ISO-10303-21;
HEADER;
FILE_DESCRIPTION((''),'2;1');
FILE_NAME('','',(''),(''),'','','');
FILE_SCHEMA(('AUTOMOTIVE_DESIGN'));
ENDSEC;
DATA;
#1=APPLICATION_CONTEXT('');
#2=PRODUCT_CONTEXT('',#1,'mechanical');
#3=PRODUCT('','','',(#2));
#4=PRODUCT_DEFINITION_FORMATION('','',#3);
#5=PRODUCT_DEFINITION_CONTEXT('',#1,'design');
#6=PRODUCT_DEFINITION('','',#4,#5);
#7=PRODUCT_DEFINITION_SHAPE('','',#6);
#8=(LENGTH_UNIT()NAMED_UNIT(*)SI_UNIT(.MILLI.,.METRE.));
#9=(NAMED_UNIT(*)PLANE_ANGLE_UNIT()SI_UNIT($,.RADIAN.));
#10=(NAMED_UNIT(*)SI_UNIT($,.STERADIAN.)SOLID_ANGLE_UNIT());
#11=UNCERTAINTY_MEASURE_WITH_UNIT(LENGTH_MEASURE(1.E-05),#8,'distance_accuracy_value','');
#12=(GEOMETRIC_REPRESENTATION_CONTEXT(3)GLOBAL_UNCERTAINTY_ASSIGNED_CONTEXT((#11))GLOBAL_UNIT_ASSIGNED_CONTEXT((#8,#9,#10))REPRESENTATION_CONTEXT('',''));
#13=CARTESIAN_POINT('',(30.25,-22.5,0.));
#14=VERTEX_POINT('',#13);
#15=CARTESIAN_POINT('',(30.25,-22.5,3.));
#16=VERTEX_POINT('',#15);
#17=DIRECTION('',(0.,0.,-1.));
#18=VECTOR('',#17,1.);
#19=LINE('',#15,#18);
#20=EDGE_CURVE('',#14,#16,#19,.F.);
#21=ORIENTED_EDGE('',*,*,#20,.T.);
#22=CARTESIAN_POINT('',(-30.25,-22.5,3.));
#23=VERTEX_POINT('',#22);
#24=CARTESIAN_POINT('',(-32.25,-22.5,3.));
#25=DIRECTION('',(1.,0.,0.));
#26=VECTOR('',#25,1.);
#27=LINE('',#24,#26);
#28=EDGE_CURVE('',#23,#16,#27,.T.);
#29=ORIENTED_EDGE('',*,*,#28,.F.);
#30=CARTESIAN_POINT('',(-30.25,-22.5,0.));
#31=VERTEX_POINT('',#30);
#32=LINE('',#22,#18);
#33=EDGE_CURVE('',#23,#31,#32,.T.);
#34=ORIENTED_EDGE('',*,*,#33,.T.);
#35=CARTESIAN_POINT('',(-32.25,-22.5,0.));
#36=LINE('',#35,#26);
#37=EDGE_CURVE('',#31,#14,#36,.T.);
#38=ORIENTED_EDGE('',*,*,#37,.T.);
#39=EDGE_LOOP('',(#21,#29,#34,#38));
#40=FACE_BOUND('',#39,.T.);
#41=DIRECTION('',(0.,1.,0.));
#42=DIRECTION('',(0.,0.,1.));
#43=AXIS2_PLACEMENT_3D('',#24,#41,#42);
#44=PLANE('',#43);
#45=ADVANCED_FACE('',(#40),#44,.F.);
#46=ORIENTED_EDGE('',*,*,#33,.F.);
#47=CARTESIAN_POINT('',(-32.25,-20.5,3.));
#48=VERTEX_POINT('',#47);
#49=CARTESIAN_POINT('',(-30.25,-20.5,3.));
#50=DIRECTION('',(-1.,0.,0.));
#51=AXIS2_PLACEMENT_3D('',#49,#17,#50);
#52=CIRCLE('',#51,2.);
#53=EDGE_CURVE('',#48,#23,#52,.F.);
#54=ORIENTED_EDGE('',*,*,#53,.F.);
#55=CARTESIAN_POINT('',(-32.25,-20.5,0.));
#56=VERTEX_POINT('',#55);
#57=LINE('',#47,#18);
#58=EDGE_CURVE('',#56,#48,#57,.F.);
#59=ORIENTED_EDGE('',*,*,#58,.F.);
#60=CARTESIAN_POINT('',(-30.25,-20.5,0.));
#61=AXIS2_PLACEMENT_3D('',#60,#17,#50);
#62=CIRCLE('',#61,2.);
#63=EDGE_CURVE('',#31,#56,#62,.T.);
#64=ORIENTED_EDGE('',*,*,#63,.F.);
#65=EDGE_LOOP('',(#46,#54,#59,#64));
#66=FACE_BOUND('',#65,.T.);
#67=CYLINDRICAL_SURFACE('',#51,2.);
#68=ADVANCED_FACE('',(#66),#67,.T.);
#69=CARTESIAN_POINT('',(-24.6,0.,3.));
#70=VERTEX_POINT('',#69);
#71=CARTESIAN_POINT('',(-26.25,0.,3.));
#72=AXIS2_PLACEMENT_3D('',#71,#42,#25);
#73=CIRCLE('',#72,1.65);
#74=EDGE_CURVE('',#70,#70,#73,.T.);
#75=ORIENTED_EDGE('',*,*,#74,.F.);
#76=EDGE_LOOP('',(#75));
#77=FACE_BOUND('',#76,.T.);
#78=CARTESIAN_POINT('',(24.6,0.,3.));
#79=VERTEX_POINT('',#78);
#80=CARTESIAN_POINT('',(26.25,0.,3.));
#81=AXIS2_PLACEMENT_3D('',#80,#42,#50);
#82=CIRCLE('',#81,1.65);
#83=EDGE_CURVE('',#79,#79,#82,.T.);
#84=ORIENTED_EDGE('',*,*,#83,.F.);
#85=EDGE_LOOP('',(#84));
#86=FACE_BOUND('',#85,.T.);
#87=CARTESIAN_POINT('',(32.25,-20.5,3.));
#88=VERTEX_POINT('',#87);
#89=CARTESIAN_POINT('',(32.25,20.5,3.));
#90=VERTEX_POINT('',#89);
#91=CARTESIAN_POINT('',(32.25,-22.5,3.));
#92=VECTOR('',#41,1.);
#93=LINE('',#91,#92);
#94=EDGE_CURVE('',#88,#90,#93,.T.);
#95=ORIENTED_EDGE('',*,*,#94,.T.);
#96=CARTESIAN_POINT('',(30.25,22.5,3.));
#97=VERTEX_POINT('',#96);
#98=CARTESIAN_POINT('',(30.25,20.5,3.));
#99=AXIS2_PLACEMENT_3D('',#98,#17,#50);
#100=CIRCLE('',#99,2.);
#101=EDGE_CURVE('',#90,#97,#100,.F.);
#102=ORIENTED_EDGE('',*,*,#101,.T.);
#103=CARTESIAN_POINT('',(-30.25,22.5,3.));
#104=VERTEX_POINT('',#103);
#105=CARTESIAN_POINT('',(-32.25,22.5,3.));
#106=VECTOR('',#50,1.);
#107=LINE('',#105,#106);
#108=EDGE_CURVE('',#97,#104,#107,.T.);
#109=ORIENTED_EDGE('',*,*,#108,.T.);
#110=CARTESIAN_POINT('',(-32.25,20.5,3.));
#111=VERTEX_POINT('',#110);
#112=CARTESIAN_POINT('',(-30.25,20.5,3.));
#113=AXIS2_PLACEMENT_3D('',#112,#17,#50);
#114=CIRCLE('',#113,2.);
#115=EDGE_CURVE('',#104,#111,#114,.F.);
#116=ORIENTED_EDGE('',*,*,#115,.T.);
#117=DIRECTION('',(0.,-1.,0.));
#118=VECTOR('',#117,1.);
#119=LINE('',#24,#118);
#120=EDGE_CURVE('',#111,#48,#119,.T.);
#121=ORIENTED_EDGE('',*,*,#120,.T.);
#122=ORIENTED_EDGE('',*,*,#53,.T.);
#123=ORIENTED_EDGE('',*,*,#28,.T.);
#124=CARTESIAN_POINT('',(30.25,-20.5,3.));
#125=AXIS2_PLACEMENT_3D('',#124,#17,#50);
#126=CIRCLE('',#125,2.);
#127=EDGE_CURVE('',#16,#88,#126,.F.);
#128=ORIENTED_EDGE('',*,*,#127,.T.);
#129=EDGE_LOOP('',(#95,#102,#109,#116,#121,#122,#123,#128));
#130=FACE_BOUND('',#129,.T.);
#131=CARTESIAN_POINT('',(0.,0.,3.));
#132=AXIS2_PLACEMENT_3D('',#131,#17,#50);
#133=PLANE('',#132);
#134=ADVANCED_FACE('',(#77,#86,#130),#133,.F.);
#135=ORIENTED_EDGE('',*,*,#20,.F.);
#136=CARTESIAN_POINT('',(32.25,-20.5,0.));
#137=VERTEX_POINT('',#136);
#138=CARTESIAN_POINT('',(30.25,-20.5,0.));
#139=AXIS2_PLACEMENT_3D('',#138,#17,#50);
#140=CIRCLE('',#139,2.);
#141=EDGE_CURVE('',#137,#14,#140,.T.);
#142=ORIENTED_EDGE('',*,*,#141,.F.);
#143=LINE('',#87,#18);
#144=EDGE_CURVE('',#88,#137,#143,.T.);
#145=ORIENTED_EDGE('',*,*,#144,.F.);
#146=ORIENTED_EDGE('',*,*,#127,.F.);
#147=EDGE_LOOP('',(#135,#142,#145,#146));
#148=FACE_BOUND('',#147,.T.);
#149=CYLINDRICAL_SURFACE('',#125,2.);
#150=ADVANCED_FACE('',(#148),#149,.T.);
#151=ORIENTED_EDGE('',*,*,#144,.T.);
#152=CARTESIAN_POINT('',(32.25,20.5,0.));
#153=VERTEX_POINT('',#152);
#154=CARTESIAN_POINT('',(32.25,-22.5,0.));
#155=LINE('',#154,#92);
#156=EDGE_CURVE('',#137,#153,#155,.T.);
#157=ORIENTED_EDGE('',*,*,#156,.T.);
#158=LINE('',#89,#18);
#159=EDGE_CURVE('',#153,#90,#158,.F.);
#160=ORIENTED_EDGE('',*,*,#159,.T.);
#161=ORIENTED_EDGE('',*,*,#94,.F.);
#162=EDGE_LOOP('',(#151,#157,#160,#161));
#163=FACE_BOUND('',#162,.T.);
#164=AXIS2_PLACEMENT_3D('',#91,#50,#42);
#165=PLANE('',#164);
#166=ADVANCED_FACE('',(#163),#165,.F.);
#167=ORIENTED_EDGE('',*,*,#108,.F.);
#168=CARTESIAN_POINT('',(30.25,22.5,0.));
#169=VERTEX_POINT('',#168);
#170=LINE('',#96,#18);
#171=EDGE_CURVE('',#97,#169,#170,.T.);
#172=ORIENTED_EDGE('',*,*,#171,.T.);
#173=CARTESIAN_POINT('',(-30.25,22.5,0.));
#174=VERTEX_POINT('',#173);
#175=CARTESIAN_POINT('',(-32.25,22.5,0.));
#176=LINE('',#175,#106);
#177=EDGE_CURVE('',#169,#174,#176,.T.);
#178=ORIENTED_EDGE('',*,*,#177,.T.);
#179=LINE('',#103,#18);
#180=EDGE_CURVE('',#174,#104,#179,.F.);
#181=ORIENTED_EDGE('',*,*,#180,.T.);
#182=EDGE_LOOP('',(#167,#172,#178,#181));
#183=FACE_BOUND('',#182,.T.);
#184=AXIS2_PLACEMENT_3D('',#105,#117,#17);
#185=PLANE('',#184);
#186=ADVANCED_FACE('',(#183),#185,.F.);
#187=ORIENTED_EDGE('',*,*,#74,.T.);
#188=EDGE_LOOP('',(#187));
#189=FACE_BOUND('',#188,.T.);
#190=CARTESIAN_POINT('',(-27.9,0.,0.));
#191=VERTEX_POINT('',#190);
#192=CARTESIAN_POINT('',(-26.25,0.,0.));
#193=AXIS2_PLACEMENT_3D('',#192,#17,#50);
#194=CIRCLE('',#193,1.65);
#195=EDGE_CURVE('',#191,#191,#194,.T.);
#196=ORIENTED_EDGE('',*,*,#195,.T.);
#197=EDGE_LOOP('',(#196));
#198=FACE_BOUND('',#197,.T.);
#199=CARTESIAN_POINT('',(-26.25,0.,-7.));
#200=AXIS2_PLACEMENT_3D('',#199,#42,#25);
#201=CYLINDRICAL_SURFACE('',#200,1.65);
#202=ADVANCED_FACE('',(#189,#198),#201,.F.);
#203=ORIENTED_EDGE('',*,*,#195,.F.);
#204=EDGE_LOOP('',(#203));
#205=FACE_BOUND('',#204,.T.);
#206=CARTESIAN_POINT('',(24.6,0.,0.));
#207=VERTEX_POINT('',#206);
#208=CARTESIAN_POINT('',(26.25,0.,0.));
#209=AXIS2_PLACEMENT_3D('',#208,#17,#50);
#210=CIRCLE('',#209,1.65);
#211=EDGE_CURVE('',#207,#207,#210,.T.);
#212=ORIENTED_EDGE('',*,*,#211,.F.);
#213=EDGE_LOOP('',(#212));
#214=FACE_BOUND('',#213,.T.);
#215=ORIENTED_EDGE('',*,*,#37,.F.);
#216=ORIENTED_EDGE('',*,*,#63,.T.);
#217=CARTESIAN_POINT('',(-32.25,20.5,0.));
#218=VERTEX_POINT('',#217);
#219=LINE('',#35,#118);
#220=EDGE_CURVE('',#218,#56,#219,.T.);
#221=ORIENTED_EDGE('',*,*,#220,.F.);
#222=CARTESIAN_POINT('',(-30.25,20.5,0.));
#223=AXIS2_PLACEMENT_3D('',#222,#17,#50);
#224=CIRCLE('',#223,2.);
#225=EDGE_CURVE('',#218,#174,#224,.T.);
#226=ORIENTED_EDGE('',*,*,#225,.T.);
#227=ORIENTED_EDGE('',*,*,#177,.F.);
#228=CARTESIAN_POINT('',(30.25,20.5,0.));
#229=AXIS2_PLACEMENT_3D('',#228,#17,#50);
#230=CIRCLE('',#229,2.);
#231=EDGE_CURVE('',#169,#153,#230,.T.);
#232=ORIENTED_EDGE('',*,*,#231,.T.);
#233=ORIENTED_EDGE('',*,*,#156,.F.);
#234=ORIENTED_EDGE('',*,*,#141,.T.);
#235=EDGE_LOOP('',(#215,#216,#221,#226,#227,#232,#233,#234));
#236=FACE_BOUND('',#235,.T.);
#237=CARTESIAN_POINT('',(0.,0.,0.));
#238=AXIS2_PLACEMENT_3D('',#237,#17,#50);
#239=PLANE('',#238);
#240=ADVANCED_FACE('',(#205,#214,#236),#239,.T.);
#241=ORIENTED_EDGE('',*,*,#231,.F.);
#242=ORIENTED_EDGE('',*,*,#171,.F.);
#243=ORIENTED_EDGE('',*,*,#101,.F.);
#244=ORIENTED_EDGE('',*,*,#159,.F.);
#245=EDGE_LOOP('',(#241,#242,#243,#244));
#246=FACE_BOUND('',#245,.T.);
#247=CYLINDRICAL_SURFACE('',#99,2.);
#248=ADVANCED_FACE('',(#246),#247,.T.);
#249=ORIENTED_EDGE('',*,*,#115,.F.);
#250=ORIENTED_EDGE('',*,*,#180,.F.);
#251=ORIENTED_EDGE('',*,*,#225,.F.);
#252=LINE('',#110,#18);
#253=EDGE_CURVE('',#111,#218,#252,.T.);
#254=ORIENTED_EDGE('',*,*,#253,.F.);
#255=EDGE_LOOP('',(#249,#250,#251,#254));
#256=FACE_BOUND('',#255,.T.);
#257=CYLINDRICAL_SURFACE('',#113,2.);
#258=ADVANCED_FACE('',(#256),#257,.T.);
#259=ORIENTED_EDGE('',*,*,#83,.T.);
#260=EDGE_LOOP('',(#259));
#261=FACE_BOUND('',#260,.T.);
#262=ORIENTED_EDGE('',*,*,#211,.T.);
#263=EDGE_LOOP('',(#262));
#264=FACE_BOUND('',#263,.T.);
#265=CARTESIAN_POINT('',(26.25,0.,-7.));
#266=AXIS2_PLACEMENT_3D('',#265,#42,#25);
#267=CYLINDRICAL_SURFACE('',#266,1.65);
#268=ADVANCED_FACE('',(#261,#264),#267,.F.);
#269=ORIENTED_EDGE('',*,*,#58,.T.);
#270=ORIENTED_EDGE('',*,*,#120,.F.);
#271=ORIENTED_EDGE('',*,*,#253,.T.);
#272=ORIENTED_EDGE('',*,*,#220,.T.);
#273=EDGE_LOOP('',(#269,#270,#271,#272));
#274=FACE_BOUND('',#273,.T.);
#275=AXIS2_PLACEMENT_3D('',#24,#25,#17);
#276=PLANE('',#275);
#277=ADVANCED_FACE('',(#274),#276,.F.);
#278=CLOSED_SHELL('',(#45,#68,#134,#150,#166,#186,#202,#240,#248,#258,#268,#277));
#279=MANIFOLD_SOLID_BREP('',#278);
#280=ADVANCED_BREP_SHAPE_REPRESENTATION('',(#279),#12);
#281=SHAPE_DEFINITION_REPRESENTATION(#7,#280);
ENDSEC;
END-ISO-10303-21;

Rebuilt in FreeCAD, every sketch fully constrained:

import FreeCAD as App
import Part
import Sketcher
from FreeCAD import Vector
Q = App.Units.Quantity


def edges_at(feature, points):
    """Names of the edges that pass closest to the given points."""
    edges = feature.Shape.Edges
    near = lambda p: min(range(len(edges)), key=lambda i: edges[i].distToShape(Part.Vertex(*p))[0])
    return sorted({f"Edge{near(p) + 1}" for p in points})

doc = App.newDocument("Part")
body = doc.addObject("PartDesign::Body", "Body")

sketch1 = body.newObject("Sketcher::SketchObject", "Sketch")
sketch1.AttachmentSupport = (doc.getObject("XY_Plane"), [""])
sketch1.MapMode = "FlatFace"
sketch1.addGeometry(Part.LineSegment(Vector(-32.25, 22.5, 0), Vector(-32.25, -22.5, 0)), False)
sketch1.addGeometry(Part.LineSegment(Vector(-32.25, -22.5, 0), Vector(32.25, -22.5, 0)), False)
sketch1.addGeometry(Part.LineSegment(Vector(32.25, -22.5, 0), Vector(32.25, 22.5, 0)), False)
sketch1.addGeometry(Part.LineSegment(Vector(32.25, 22.5, 0), Vector(-32.25, 22.5, 0)), False)
sketch1.addConstraint(Sketcher.Constraint("Coincident", 0, 2, 1, 1))
sketch1.addConstraint(Sketcher.Constraint("Coincident", 1, 2, 2, 1))
sketch1.addConstraint(Sketcher.Constraint("Coincident", 2, 2, 3, 1))
sketch1.addConstraint(Sketcher.Constraint("Coincident", 3, 2, 0, 1))
sketch1.addConstraint(Sketcher.Constraint("Vertical", 0))
sketch1.addConstraint(Sketcher.Constraint("Horizontal", 1))
sketch1.addConstraint(Sketcher.Constraint("Vertical", 2))
sketch1.addConstraint(Sketcher.Constraint("Horizontal", 3))
sketch1.addConstraint(Sketcher.Constraint("Symmetric", 0, 2, 2, 2, -1, 1))
sketch1.addConstraint(Sketcher.Constraint("DistanceY", 0, 2, 0, 1, Q("45 mm")))
sketch1.addConstraint(Sketcher.Constraint("DistanceX", 1, 1, 1, 2, Q("64.5 mm")))
pad1 = body.newObject("PartDesign::Pad", "Pad")
pad1.Profile = sketch1
pad1.Length = 3

sketch2 = body.newObject("Sketcher::SketchObject", "Sketch001")
sketch2.AttachmentSupport = (doc.getObject("XY_Plane"), [""])
sketch2.MapMode = "FlatFace"
sketch2.AttachmentOffset = App.Placement(Vector(0, 0, 3), App.Rotation())
sketch2.addGeometry(Part.LineSegment(Vector(26.25, 5, 0), Vector(26.25, -5, 0)), False)
sketch2.addGeometry(Part.LineSegment(Vector(26.25, -5, 0), Vector(38.25, -5, 0)), False)
sketch2.addGeometry(Part.LineSegment(Vector(38.25, -5, 0), Vector(38.25, 5, 0)), False)
sketch2.addGeometry(Part.LineSegment(Vector(38.25, 5, 0), Vector(26.25, 5, 0)), False)
sketch2.addGeometry(Part.LineSegment(Vector(-38.25, 5, 0), Vector(-38.25, -5, 0)), False)
sketch2.addGeometry(Part.LineSegment(Vector(-38.25, -5, 0), Vector(-26.25, -5, 0)), False)
sketch2.addGeometry(Part.LineSegment(Vector(-26.25, -5, 0), Vector(-26.25, 5, 0)), False)
sketch2.addGeometry(Part.LineSegment(Vector(-26.25, 5, 0), Vector(-38.25, 5, 0)), False)
sketch2.addConstraint(Sketcher.Constraint("Coincident", 0, 2, 1, 1))
sketch2.addConstraint(Sketcher.Constraint("Coincident", 1, 2, 2, 1))
sketch2.addConstraint(Sketcher.Constraint("Coincident", 2, 2, 3, 1))
sketch2.addConstraint(Sketcher.Constraint("Coincident", 3, 2, 0, 1))
sketch2.addConstraint(Sketcher.Constraint("Coincident", 4, 2, 5, 1))
sketch2.addConstraint(Sketcher.Constraint("Coincident", 5, 2, 6, 1))
sketch2.addConstraint(Sketcher.Constraint("Coincident", 6, 2, 7, 1))
sketch2.addConstraint(Sketcher.Constraint("Coincident", 7, 2, 4, 1))
sketch2.addConstraint(Sketcher.Constraint("Vertical", 0))
sketch2.addConstraint(Sketcher.Constraint("Horizontal", 1))
sketch2.addConstraint(Sketcher.Constraint("Vertical", 2))
sketch2.addConstraint(Sketcher.Constraint("Horizontal", 3))
sketch2.addConstraint(Sketcher.Constraint("Vertical", 4))
sketch2.addConstraint(Sketcher.Constraint("Horizontal", 5))
sketch2.addConstraint(Sketcher.Constraint("Vertical", 6))
sketch2.addConstraint(Sketcher.Constraint("Horizontal", 7))
sketch2.addConstraint(Sketcher.Constraint("Symmetric", 2, 2, 4, 2, -1, 1))
sketch2.addConstraint(Sketcher.Constraint("Symmetric", 0, 2, 6, 2, -1, 1))
sketch2.addConstraint(Sketcher.Constraint("Horizontal", 1, 2, 4, 2))
sketch2.addConstraint(Sketcher.Constraint("DistanceX", 1, 1, 1, 2, Q("12 mm")))
sketch2.addConstraint(Sketcher.Constraint("DistanceY", 0, 2, 0, 1, Q("10 mm")))
sketch2.addConstraint(Sketcher.Constraint("DistanceX", 4, 2, 0, 2, Q("64.5 mm")))
pad2 = body.newObject("PartDesign::Pad", "Pad001")
pad2.Profile = sketch2
pad2.Length = 3
pad2.Reversed = True
doc.recompute()

fillet = body.newObject("PartDesign::Fillet", "Fillet")
fillet.Base = (pad2, edges_at(pad2, [
    (38.25, -5, 1.5),
    (32.25, 5, 1.5),
    (32.25, -5, 1.5),
    (38.25, 5, 1.5),
    (-38.25, 5, 1.5),
    (-32.25, 5, 1.5),
    (-38.25, -5, 1.5),
    (-32.25, -5, 1.5),
    (32.25, -22.5, 1.5),
    (-32.25, -22.5, 1.5),
    (-32.25, 22.5, 1.5),
    (32.25, 22.5, 1.5),
]))
fillet.Radius = 2

sketch3 = body.newObject("Sketcher::SketchObject", "Sketch002")
sketch3.AttachmentSupport = (doc.getObject("XY_Plane"), [""])
sketch3.MapMode = "FlatFace"
sketch3.AttachmentOffset = App.Placement(Vector(0, 0, 3), App.Rotation())
sketch3.addGeometry(Part.Circle(Vector(-35.25, 0, 0), Vector(0, 0, 1), 1.65), False)
sketch3.addGeometry(Part.Circle(Vector(35.25, 0, 0), Vector(0, 0, 1), 1.65), False)
sketch3.addConstraint(Sketcher.Constraint("Equal", 0, 1))
sketch3.addConstraint(Sketcher.Constraint("Symmetric", 0, 3, 1, 3, -1, 1))
sketch3.addConstraint(Sketcher.Constraint("PointOnObject", 0, 3, -1))
sketch3.addConstraint(Sketcher.Constraint("Diameter", 0, Q("3.3 mm")))
sketch3.addConstraint(Sketcher.Constraint("DistanceX", 0, 3, 1, 3, Q("70.5 mm")))
pocket1 = body.newObject("PartDesign::Pocket", "Pocket")
pocket1.Profile = sketch3
pocket1.Length = 6

sketch4 = body.newObject("Sketcher::SketchObject", "Sketch003")
sketch4.AttachmentSupport = (doc.getObject("XY_Plane"), [""])
sketch4.MapMode = "FlatFace"
sketch4.AttachmentOffset = App.Placement(Vector(0, 0, 3), App.Rotation())
sketch4.addGeometry(Part.LineSegment(Vector(-38.25, 7, 0), Vector(-38.25, -7, 0)), False)
sketch4.addGeometry(Part.LineSegment(Vector(-38.25, -7, 0), Vector(-32.25, -7, 0)), False)
sketch4.addGeometry(Part.LineSegment(Vector(-32.25, -7, 0), Vector(-32.25, 7, 0)), False)
sketch4.addGeometry(Part.LineSegment(Vector(-32.25, 7, 0), Vector(-38.25, 7, 0)), False)
sketch4.addGeometry(Part.LineSegment(Vector(32.25, 7, 0), Vector(32.25, -7, 0)), False)
sketch4.addGeometry(Part.LineSegment(Vector(32.25, -7, 0), Vector(38.25, -7, 0)), False)
sketch4.addGeometry(Part.LineSegment(Vector(38.25, -7, 0), Vector(38.25, 7, 0)), False)
sketch4.addGeometry(Part.LineSegment(Vector(38.25, 7, 0), Vector(32.25, 7, 0)), False)
sketch4.addConstraint(Sketcher.Constraint("Coincident", 0, 2, 1, 1))
sketch4.addConstraint(Sketcher.Constraint("Coincident", 1, 2, 2, 1))
sketch4.addConstraint(Sketcher.Constraint("Coincident", 2, 2, 3, 1))
sketch4.addConstraint(Sketcher.Constraint("Coincident", 3, 2, 0, 1))
sketch4.addConstraint(Sketcher.Constraint("Coincident", 4, 2, 5, 1))
sketch4.addConstraint(Sketcher.Constraint("Coincident", 5, 2, 6, 1))
sketch4.addConstraint(Sketcher.Constraint("Coincident", 6, 2, 7, 1))
sketch4.addConstraint(Sketcher.Constraint("Coincident", 7, 2, 4, 1))
sketch4.addConstraint(Sketcher.Constraint("Vertical", 0))
sketch4.addConstraint(Sketcher.Constraint("Horizontal", 1))
sketch4.addConstraint(Sketcher.Constraint("Vertical", 2))
sketch4.addConstraint(Sketcher.Constraint("Horizontal", 3))
sketch4.addConstraint(Sketcher.Constraint("Vertical", 4))
sketch4.addConstraint(Sketcher.Constraint("Horizontal", 5))
sketch4.addConstraint(Sketcher.Constraint("Vertical", 6))
sketch4.addConstraint(Sketcher.Constraint("Horizontal", 7))
sketch4.addConstraint(Sketcher.Constraint("Symmetric", 2, 2, 4, 2, -1, 1))
sketch4.addConstraint(Sketcher.Constraint("Symmetric", 0, 2, 6, 2, -1, 1))
sketch4.addConstraint(Sketcher.Constraint("Horizontal", 1, 2, 4, 2))
sketch4.addConstraint(Sketcher.Constraint("DistanceX", 1, 1, 1, 2, Q("6 mm")))
sketch4.addConstraint(Sketcher.Constraint("DistanceY", 0, 2, 0, 1, Q("14 mm")))
sketch4.addConstraint(Sketcher.Constraint("DistanceX", 1, 2, 4, 2, Q("64.5 mm")))
pocket2 = body.newObject("PartDesign::Pocket", "Pocket001")
pocket2.Profile = sketch4
pocket2.Length = 10

sketch5 = body.newObject("Sketcher::SketchObject", "Sketch004")
sketch5.AttachmentSupport = (doc.getObject("XY_Plane"), [""])
sketch5.MapMode = "FlatFace"
sketch5.AttachmentOffset = App.Placement(Vector(0, 0, 3), App.Rotation())
sketch5.addGeometry(Part.Circle(Vector(-26.25, 0, 0), Vector(0, 0, 1), 1.65), False)
sketch5.addGeometry(Part.Circle(Vector(26.25, 0, 0), Vector(0, 0, 1), 1.65), False)
sketch5.addConstraint(Sketcher.Constraint("Equal", 0, 1))
sketch5.addConstraint(Sketcher.Constraint("Symmetric", 0, 3, 1, 3, -1, 1))
sketch5.addConstraint(Sketcher.Constraint("PointOnObject", 0, 3, -1))
sketch5.addConstraint(Sketcher.Constraint("Diameter", 0, Q("3.3 mm")))
sketch5.addConstraint(Sketcher.Constraint("DistanceX", 0, 3, 1, 3, Q("52.5 mm")))
pocket3 = body.newObject("PartDesign::Pocket", "Pocket002")
pocket3.Profile = sketch5
pocket3.Length = 10

doc.recompute()
